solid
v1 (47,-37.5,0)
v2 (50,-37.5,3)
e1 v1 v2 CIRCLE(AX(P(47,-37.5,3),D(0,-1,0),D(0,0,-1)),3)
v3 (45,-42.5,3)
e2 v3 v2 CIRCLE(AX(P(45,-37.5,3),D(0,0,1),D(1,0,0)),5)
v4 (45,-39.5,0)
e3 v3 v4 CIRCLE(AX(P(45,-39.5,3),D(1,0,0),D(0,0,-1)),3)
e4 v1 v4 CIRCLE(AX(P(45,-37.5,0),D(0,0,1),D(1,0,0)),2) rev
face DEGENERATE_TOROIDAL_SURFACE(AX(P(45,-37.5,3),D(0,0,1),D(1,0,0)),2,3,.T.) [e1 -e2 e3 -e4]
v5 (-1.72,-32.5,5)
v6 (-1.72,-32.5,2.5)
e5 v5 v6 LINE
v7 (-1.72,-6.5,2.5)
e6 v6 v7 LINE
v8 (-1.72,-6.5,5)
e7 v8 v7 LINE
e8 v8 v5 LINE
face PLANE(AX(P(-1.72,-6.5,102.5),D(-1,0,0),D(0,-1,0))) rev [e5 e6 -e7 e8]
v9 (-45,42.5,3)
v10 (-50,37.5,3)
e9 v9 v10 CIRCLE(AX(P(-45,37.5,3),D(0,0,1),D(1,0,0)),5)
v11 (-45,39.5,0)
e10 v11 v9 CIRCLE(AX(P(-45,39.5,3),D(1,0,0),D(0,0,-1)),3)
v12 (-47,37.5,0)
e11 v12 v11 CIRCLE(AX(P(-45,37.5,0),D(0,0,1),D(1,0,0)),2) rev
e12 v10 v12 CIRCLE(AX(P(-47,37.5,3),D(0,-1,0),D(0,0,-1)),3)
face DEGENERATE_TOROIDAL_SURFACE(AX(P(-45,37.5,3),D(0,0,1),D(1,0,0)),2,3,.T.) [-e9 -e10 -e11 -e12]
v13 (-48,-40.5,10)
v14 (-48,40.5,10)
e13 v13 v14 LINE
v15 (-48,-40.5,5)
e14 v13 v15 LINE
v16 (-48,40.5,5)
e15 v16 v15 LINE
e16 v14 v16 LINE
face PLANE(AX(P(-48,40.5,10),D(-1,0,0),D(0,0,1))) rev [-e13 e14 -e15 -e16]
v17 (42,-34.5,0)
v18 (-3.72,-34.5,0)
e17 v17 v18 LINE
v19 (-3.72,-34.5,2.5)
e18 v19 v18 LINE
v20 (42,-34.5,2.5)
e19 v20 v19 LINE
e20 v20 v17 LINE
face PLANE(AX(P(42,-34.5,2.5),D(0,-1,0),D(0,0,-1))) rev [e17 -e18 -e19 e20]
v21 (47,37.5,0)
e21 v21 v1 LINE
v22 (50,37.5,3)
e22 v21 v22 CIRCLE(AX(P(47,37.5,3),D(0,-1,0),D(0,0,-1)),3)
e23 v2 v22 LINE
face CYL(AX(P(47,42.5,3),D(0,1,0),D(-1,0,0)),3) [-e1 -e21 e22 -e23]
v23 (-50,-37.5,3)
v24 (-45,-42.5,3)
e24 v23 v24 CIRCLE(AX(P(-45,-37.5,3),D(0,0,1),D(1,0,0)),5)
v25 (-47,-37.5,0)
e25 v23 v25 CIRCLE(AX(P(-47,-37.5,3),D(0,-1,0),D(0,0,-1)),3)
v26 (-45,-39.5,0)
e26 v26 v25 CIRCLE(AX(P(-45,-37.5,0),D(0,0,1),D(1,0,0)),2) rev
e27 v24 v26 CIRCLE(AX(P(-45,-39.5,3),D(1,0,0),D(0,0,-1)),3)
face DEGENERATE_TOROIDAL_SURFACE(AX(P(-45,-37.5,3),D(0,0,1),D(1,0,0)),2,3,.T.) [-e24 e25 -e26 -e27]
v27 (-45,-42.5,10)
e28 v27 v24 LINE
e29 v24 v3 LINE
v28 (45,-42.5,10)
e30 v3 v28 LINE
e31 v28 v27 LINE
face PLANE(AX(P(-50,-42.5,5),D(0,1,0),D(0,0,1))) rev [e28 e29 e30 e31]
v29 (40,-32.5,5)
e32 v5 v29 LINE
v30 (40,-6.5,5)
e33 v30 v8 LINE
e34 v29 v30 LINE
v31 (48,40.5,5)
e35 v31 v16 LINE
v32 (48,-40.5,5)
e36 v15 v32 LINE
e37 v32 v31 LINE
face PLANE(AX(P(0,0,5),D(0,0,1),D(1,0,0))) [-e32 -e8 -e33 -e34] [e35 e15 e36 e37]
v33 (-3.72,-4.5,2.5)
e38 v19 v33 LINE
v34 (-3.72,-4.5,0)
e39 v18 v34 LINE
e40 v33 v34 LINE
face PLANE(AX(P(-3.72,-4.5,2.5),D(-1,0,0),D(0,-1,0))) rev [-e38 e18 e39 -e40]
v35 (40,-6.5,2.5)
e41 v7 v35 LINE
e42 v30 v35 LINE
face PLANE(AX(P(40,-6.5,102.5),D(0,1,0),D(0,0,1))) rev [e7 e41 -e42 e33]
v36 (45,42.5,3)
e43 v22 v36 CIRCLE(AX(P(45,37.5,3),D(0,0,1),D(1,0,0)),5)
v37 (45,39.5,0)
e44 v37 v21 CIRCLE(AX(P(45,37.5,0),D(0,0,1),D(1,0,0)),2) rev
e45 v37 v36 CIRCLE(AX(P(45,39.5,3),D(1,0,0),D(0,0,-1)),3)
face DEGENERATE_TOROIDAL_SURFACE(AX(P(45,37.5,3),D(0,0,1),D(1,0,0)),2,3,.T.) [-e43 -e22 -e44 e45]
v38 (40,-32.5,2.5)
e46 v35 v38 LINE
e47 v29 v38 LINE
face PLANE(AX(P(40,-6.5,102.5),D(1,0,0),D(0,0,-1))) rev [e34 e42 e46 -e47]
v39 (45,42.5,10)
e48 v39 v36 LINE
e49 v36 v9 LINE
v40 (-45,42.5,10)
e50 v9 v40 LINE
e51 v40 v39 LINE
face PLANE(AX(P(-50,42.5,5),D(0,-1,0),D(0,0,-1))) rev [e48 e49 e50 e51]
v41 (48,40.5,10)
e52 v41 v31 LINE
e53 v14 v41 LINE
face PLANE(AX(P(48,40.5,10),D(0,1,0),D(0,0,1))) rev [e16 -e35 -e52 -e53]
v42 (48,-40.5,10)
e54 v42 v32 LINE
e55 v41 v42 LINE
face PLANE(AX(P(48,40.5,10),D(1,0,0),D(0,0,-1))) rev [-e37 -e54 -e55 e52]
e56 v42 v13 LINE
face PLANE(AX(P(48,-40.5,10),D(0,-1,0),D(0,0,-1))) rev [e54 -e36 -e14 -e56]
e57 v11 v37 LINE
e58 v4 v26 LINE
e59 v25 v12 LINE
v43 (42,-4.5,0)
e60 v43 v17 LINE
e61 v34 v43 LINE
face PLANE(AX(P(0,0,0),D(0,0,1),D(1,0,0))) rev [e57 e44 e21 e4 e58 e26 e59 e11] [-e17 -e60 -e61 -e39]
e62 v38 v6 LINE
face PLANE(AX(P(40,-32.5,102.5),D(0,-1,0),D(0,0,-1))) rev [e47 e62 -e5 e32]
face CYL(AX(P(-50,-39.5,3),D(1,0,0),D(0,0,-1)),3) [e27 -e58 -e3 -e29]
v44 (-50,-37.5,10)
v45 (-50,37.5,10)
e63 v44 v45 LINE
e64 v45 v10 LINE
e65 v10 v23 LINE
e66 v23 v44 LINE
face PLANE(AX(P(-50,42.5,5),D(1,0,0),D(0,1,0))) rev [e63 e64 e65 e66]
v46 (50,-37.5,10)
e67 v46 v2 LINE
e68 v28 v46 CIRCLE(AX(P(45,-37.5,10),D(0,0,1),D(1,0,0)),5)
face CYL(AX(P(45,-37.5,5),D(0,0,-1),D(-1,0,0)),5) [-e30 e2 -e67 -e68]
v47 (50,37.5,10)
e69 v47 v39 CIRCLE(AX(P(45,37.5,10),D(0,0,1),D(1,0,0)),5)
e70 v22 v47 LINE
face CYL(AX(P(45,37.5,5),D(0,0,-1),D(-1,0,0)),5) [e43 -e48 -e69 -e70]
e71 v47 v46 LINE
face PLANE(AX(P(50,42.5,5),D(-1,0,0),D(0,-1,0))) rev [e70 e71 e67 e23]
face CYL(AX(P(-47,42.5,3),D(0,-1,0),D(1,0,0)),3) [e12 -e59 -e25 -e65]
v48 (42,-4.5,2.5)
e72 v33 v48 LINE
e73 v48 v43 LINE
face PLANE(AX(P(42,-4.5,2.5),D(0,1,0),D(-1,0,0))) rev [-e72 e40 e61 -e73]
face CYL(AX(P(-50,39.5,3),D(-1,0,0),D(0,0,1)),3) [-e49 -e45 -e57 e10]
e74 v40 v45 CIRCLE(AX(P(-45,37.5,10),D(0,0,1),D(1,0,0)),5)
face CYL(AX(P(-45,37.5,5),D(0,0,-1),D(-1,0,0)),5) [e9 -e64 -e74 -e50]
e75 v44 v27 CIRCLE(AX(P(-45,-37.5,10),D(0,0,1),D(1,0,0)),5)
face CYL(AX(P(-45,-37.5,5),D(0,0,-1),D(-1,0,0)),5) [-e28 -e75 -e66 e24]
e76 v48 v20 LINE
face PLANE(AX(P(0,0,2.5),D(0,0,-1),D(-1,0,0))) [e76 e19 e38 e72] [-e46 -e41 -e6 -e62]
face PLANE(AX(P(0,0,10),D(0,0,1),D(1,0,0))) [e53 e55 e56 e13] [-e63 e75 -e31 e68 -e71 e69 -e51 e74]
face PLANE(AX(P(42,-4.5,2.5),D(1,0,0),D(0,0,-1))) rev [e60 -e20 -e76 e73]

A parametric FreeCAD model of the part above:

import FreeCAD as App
import Part
import Sketcher
from FreeCAD import Vector
Q = App.Units.Quantity


def edges_at(feature, points):
    """Names of the edges that pass closest to the given points."""
    edges = feature.Shape.Edges
    near = lambda p: min(range(len(edges)), key=lambda i: edges[i].distToShape(Part.Vertex(*p))[0])
    return sorted({f"Edge{near(p) + 1}" for p in points})

doc = App.newDocument("Part")
body = doc.addObject("PartDesign::Body", "Body")

sketch1 = body.newObject("Sketcher::SketchObject", "Sketch")
sketch1.AttachmentSupport = (doc.getObject("XY_Plane"), [""])
sketch1.MapMode = "FlatFace"
sketch1.addGeometry([
    Part.LineSegment(Vector(-50, 42, 0), Vector(-50, -42, 0)),
    Part.LineSegment(Vector(-50, -42, 0), Vector(50, -42, 0)),
    Part.LineSegment(Vector(50, -42, 0), Vector(50, 42, 0)),
    Part.LineSegment(Vector(50, 42, 0), Vector(-50, 42, 0)),
], False)
sketch1.addConstraint([
    Sketcher.Constraint("Coincident", 0, 2, 1, 1),
    Sketcher.Constraint("Coincident", 1, 2, 2, 1),
    Sketcher.Constraint("Coincident", 2, 2, 3, 1),
    Sketcher.Constraint("Coincident", 3, 2, 0, 1),
    Sketcher.Constraint("Vertical", 0),
    Sketcher.Constraint("Horizontal", 1),
    Sketcher.Constraint("Vertical", 2),
    Sketcher.Constraint("Horizontal", 3),
    Sketcher.Constraint("Symmetric", 0, 2, 2, 2, -1, 1),
    Sketcher.Constraint("DistanceX", 1, 1, 1, 2, Q("100 mm")),
    Sketcher.Constraint("DistanceY", 0, 2, 0, 1, Q("85 mm")),
])
pad1 = body.newObject("PartDesign::Pad", "Pad")
pad1.Profile = sketch1
pad1.Length = 5

sketch2 = body.newObject("Sketcher::SketchObject", "Sketch001")
sketch2.AttachmentSupport = (doc.getObject("XY_Plane"), [""])
sketch2.MapMode = "FlatFace"
sketch2.addGeometry([
    Part.LineSegment(Vector(50, 42, 0), Vector(50, -42, 0)),
    Part.LineSegment(Vector(50, -42, 0), Vector(-50, -42, 0)),
    Part.LineSegment(Vector(-50, -42, 0), Vector(-50, 42, 0)),
    Part.LineSegment(Vector(-50, 42, 0), Vector(50, 42, 0)),
    Part.LineSegment(Vector(-48, -40, 0), Vector(48, -40, 0)),
    Part.LineSegment(Vector(48, -40, 0), Vector(48, 40, 0)),
    Part.LineSegment(Vector(48, 40, 0), Vector(-48, 40, 0)),
    Part.LineSegment(Vector(-48, 40, 0), Vector(-48, -40, 0)),
], False)
sketch2.addConstraint([
    Sketcher.Constraint("Coincident", 0, 2, 1, 1),
    Sketcher.Constraint("Coincident", 1, 2, 2, 1),
    Sketcher.Constraint("Coincident", 2, 2, 3, 1),
    Sketcher.Constraint("Coincident", 3, 2, 0, 1),
    Sketcher.Constraint("Coincident", 4, 2, 5, 1),
    Sketcher.Constraint("Coincident", 5, 2, 6, 1),
    Sketcher.Constraint("Coincident", 6, 2, 7, 1),
    Sketcher.Constraint("Coincident", 7, 2, 4, 1),
    Sketcher.Constraint("Vertical", 0),
    Sketcher.Constraint("Horizontal", 1),
    Sketcher.Constraint("Vertical", 2),
    Sketcher.Constraint("Horizontal", 3),
    Sketcher.Constraint("Horizontal", 4),
    Sketcher.Constraint("Vertical", 5),
    Sketcher.Constraint("Horizontal", 6),
    Sketcher.Constraint("Vertical", 7),
    Sketcher.Constraint("Symmetric", 0, 2, 2, 2, -1, 1),
    Sketcher.Constraint("Symmetric", 4, 2, 6, 2, -1, 1),
    Sketcher.Constraint("DistanceX", 1, 2, 1, 1, Q("100 mm")),
    Sketcher.Constraint("DistanceX", 4, 1, 4, 2, Q("96 mm")),
    Sketcher.Constraint("DistanceY", 0, 2, 0, 1, Q("85 mm")),
    Sketcher.Constraint("DistanceY", 5, 1, 5, 2, Q("81 mm")),
])
pad2 = body.newObject("PartDesign::Pad", "Pad001")
pad2.Profile = sketch2
pad2.Length = 10
doc.recompute()

fillet = body.newObject("PartDesign::Fillet", "Fillet")
fillet.Base = (pad2, edges_at(pad2, [
    (50, -42.5, 5),
    (-50, -42.5, 5),
    (-50, 42.5, 5),
    (50, 42.5, 5),
]))
fillet.Radius = 5
doc.recompute()

fillet2 = body.newObject("PartDesign::Fillet", "Fillet001")
fillet2.Base = (fillet, edges_at(fillet, [
    (0, -42.5, 0),
    (50, 0, 0),
    (-50, 0, 0),
    (0, 42.5, 0),
    (-48.536, 41.036, 0),
    (48.536, 41.036, 0),
    (48.536, -41.036, 0),
    (-48.536, -41.036, 0),
]))
fillet2.Radius = 3

sketch3 = body.newObject("Sketcher::SketchObject", "Sketch002")
sketch3.AttachmentSupport = (doc.getObject("XY_Plane"), [""])
sketch3.MapMode = "FlatFace"
sketch3.addGeometry([
    Part.LineSegment(Vector(42, -4, 0), Vector(42, -34, 0)),
    Part.LineSegment(Vector(42, -34, 0), Vector(-4, -34, 0)),
    Part.LineSegment(Vector(-4, -34, 0), Vector(-4, -4, 0)),
    Part.LineSegment(Vector(-4, -4, 0), Vector(42, -4, 0)),
], False)
sketch3.addConstraint([
    Sketcher.Constraint("Coincident", 0, 2, 1, 1),
    Sketcher.Constraint("Coincident", 1, 2, 2, 1),
    Sketcher.Constraint("Coincident", 2, 2, 3, 1),
    Sketcher.Constraint("Coincident", 3, 2, 0, 1),
    Sketcher.Constraint("Vertical", 0),
    Sketcher.Constraint("Horizontal", 1),
    Sketcher.Constraint("Vertical", 2),
    Sketcher.Constraint("Horizontal", 3),
    Sketcher.Constraint("DistanceY", 0, 2, 0, 1, Q("30 mm")),
    Sketcher.Constraint("DistanceX", -1, 1, 0, 2, Q("42 mm")),
    Sketcher.Constraint("DistanceX", 1, 2, 1, 1, Q("45.72 mm")),
    Sketcher.Constraint("DistanceY", 0, 2, -1, 1, Q("34.5 mm")),
])
pocket1 = body.newObject("PartDesign::Pocket", "Pocket")
pocket1.Profile = sketch3
pocket1.Length = 2.5
pocket1.Reversed = True

sketch4 = body.newObject("Sketcher::SketchObject", "Sketch003")
sketch4.AttachmentSupport = (doc.getObject("XY_Plane"), [""])
sketch4.MapMode = "FlatFace"
sketch4.AttachmentOffset = App.Placement(Vector(0, 0, 2.5), App.Rotation())
sketch4.addGeometry([
    Part.LineSegment(Vector(40, -6, 0), Vector(40, -32, 0)),
    Part.LineSegment(Vector(40, -32, 0), Vector(-2, -32, 0)),
    Part.LineSegment(Vector(-2, -32, 0), Vector(-2, -6, 0)),
    Part.LineSegment(Vector(-2, -6, 0), Vector(40, -6, 0)),
], False)
sketch4.addConstraint([
    Sketcher.Constraint("Coincident", 0, 2, 1, 1),
    Sketcher.Constraint("Coincident", 1, 2, 2, 1),
    Sketcher.Constraint("Coincident", 2, 2, 3, 1),
    Sketcher.Constraint("Coincident", 3, 2, 0, 1),
    Sketcher.Constraint("Vertical", 0),
    Sketcher.Constraint("Horizontal", 1),
    Sketcher.Constraint("Vertical", 2),
    Sketcher.Constraint("Horizontal", 3),
    Sketcher.Constraint("DistanceY", 0, 2, 0, 1, Q("26 mm")),
    Sketcher.Constraint("DistanceX", -1, 1, 0, 2, Q("40 mm")),
    Sketcher.Constraint("DistanceX", 1, 2, 1, 1, Q("41.72 mm")),
    Sketcher.Constraint("DistanceY", 0, 2, -1, 1, Q("32.5 mm")),
])
pocket2 = body.newObject("PartDesign::Pocket", "Pocket001")
pocket2.Profile = sketch4
pocket2.Length = 100
pocket2.Reversed = True

doc.recompute()
